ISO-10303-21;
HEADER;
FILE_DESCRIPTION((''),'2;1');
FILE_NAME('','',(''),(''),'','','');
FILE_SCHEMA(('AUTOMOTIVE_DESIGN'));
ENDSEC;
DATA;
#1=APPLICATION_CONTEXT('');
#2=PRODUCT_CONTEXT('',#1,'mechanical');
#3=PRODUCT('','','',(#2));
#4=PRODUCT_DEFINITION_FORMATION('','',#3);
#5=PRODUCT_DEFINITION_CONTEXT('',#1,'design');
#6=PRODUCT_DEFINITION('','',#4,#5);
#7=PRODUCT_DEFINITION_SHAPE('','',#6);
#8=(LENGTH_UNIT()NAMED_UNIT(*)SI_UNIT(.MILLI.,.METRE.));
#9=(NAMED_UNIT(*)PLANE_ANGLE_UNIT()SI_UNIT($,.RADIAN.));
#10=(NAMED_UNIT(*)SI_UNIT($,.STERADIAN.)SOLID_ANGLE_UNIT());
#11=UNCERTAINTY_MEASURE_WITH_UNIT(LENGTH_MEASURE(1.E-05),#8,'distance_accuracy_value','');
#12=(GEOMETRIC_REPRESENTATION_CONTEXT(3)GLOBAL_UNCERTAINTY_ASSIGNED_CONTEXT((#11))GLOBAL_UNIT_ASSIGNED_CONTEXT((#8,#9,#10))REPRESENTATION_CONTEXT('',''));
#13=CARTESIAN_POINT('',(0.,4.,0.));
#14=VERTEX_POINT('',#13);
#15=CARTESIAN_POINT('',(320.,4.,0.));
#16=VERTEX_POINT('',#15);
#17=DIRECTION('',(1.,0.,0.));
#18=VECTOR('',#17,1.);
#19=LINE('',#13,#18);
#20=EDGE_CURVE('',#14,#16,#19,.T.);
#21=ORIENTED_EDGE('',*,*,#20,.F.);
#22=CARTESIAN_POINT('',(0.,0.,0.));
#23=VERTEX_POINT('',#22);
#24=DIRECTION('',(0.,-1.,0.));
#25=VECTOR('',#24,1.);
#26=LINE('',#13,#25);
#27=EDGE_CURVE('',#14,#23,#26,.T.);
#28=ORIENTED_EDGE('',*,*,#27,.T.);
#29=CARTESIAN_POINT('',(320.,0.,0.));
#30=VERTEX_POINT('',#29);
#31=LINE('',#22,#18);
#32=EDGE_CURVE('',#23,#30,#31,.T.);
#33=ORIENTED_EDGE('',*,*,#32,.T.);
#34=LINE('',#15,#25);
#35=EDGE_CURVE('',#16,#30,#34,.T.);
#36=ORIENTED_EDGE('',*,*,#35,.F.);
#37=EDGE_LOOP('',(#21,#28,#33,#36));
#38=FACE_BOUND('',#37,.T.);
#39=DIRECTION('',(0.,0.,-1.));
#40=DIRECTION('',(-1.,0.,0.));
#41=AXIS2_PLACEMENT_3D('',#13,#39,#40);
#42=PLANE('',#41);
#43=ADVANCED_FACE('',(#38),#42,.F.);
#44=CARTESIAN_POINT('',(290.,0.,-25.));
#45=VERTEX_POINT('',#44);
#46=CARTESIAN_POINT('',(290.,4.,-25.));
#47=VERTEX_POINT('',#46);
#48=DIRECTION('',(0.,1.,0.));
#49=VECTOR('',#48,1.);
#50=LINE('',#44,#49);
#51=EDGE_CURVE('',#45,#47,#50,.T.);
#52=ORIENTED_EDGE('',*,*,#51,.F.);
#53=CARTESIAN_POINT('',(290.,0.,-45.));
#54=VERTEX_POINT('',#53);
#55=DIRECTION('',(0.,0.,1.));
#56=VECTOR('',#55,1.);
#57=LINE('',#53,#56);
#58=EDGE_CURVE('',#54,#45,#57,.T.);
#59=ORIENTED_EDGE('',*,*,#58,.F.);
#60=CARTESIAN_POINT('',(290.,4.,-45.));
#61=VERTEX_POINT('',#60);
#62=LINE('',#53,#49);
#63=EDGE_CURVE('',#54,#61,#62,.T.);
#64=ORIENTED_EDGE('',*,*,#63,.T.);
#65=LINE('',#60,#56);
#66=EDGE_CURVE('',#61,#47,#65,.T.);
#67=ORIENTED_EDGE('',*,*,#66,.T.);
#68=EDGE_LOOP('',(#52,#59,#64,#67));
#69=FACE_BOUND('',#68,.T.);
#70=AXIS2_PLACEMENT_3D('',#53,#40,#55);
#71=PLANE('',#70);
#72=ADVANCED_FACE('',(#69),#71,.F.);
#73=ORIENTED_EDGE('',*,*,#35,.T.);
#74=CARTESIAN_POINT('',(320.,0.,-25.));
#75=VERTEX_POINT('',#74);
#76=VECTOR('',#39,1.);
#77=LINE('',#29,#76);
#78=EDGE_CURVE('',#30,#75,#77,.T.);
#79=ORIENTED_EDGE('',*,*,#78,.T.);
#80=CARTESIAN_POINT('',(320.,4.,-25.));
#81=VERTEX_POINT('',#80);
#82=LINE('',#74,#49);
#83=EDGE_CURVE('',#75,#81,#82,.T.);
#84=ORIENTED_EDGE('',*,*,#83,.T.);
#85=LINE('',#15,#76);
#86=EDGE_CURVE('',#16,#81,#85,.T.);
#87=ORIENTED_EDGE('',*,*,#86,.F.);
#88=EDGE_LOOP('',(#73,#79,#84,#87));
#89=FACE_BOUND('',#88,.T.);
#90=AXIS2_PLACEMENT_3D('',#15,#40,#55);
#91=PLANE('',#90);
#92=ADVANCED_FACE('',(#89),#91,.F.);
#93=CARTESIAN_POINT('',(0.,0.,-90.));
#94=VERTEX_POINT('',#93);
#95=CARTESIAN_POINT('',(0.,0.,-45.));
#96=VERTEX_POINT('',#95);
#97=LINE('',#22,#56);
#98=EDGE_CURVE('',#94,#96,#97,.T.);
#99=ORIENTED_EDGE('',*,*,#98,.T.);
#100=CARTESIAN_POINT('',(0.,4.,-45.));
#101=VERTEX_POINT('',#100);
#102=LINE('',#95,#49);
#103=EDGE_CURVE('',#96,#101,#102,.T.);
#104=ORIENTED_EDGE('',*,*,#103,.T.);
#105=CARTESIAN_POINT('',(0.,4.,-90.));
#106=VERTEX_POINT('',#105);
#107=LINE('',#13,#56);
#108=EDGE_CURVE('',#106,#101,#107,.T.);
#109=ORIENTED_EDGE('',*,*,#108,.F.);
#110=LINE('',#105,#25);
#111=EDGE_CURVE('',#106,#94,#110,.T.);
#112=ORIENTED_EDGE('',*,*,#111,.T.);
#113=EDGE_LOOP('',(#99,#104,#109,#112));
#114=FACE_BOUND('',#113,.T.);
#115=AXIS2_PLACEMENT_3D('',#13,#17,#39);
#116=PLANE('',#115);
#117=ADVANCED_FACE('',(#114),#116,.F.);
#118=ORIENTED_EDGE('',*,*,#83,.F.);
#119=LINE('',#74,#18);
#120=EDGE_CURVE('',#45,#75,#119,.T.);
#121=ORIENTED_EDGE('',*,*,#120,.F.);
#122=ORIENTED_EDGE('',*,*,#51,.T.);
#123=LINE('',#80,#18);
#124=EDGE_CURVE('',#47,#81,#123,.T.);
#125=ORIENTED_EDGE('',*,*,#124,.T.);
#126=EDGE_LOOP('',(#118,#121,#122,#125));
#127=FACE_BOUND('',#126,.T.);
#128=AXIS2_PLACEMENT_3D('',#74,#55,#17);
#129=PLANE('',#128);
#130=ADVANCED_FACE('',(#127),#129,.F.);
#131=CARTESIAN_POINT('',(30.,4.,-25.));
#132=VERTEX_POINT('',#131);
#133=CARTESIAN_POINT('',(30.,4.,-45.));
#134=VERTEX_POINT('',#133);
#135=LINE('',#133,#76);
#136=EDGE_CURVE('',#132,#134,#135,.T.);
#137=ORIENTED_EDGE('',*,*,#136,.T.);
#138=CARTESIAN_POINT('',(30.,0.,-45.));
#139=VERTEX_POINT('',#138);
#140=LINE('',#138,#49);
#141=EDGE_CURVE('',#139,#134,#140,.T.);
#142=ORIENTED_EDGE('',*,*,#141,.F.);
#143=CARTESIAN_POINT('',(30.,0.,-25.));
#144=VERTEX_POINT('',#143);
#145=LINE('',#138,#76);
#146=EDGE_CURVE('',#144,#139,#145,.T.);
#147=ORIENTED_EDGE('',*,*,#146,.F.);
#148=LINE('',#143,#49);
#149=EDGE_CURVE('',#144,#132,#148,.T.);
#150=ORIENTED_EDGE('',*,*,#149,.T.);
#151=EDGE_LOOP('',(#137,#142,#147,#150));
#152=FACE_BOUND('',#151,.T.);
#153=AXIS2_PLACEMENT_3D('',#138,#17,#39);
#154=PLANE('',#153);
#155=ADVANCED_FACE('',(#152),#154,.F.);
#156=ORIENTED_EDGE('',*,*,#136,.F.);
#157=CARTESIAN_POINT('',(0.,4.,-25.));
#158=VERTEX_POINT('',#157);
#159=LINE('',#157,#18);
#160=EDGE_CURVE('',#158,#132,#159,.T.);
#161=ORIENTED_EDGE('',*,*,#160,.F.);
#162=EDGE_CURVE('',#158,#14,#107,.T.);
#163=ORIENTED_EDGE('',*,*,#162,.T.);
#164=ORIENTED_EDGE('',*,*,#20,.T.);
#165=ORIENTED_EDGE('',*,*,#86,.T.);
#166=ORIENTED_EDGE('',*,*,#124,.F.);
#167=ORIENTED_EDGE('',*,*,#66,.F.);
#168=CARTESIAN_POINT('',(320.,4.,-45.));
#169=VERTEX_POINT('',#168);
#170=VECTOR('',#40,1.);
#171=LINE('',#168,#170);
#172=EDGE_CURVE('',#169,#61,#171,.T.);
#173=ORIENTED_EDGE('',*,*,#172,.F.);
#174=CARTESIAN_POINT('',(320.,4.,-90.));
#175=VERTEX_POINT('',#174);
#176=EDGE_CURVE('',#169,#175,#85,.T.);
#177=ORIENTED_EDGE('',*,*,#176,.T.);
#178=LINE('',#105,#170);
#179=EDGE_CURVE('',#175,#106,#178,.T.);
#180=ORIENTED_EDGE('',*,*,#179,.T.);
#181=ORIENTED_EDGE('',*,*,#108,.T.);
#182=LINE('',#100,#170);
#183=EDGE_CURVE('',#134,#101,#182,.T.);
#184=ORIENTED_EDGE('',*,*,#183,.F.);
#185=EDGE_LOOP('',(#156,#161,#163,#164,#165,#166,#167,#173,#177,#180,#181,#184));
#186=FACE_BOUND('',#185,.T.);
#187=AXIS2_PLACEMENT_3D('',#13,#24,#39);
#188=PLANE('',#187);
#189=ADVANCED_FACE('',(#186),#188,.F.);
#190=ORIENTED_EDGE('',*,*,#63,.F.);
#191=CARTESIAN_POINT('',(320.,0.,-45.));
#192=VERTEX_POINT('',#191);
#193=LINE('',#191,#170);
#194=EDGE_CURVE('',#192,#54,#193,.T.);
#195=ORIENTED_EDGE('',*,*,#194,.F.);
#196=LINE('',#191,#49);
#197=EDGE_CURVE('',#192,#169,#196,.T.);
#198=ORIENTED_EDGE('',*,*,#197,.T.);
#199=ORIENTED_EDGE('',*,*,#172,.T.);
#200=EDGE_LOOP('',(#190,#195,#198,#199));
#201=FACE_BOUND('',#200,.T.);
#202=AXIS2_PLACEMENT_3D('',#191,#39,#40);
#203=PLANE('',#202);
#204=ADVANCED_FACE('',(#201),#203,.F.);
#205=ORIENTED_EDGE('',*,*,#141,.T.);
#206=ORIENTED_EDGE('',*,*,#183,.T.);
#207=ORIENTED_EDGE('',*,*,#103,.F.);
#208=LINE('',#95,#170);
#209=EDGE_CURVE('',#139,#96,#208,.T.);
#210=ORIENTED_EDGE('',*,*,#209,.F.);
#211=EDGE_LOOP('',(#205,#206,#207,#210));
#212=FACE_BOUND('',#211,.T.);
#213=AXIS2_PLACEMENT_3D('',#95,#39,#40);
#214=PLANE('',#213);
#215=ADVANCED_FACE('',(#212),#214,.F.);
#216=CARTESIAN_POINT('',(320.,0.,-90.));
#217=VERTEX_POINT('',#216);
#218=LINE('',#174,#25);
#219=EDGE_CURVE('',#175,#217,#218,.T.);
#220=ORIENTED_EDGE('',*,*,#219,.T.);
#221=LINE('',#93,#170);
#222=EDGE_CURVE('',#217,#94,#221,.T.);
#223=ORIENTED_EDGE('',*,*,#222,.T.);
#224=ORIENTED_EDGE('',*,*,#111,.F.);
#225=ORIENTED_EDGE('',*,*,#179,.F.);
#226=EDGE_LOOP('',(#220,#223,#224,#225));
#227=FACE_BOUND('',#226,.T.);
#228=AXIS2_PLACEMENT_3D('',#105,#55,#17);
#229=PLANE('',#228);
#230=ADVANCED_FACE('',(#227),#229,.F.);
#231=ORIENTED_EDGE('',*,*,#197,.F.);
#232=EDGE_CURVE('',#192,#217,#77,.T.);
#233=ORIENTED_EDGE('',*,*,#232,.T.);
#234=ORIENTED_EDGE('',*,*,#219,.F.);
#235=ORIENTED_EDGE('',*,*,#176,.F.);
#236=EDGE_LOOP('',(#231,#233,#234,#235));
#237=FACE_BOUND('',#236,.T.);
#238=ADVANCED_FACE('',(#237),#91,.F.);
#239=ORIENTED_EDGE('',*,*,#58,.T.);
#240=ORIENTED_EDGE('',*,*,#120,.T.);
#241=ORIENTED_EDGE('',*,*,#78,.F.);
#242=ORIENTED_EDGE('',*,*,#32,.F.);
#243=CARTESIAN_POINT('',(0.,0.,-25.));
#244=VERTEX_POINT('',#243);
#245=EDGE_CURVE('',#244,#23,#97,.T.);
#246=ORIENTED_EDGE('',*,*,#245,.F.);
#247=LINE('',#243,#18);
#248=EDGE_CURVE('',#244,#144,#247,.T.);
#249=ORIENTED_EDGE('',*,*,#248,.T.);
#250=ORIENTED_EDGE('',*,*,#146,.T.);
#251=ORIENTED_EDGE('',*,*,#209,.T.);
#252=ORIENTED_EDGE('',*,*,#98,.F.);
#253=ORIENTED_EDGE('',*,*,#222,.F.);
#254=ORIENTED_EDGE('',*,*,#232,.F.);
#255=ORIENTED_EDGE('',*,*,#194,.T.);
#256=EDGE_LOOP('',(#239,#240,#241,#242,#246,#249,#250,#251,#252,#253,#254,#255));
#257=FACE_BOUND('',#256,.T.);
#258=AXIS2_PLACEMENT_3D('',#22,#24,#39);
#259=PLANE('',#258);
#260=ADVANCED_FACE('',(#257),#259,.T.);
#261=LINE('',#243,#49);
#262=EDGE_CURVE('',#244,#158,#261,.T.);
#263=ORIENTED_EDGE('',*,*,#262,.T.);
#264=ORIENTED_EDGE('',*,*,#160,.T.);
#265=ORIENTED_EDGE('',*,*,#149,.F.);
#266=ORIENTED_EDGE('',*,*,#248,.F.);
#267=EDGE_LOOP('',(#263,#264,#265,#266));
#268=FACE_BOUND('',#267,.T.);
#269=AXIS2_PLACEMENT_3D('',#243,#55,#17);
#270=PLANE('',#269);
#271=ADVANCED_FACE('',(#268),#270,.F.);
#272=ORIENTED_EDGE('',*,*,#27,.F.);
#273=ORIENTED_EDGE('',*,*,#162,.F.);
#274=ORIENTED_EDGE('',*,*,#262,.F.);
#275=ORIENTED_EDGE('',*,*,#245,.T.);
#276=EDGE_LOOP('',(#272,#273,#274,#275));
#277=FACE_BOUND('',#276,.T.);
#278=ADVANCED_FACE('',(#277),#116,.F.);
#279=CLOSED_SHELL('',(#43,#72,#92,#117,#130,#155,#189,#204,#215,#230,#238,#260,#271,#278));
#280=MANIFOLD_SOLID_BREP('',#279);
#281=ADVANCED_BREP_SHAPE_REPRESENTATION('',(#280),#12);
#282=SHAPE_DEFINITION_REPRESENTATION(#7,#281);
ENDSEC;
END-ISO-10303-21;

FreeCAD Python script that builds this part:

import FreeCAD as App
import Part
import Sketcher

doc = App.newDocument("Part")
body = doc.addObject("PartDesign::Body", "Body")

sketch1 = body.newObject("Sketcher::SketchObject", "Sketch")
sketch1.AttachmentSupport = (doc.getObject("XZ_Plane"), [""])
sketch1.MapMode = "FlatFace"
sketch1.addGeometry(Part.LineSegment(App.Vector(0, -90, 0), App.Vector(0, 0, 0)), False)
sketch1.addGeometry(Part.LineSegment(App.Vector(0, 0, 0), App.Vector(320, 0, 0)), False)
sketch1.addGeometry(Part.LineSegment(App.Vector(320, 0, 0), App.Vector(320, -90, 0)), False)
sketch1.addGeometry(Part.LineSegment(App.Vector(320, -90, 0), App.Vector(0, -90, 0)), False)
sketch1.addConstraint(Sketcher.Constraint("Coincident", 0, 2, 1, 1))
sketch1.addConstraint(Sketcher.Constraint("Coincident", 1, 2, 2, 1))
sketch1.addConstraint(Sketcher.Constraint("Coincident", 2, 2, 3, 1))
sketch1.addConstraint(Sketcher.Constraint("Coincident", 3, 2, 0, 1))
sketch1.addConstraint(Sketcher.Constraint("Vertical", 0))
sketch1.addConstraint(Sketcher.Constraint("Horizontal", 1))
sketch1.addConstraint(Sketcher.Constraint("Vertical", 2))
sketch1.addConstraint(Sketcher.Constraint("Horizontal", 3))
sketch1.addConstraint(Sketcher.Constraint("Coincident", 0, 2, -1, 1))
sketch1.addConstraint(Sketcher.Constraint("DistanceX", 1, 1, 1, 2, 320.0))
sketch1.addConstraint(Sketcher.Constraint("DistanceY", 0, 1, 0, 2, 90.0))
pad1 = body.newObject("PartDesign::Pad", "Pad")
pad1.Profile = sketch1
pad1.Length = 4
pad1.Reversed = True

sketch2 = body.newObject("Sketcher::SketchObject", "Sketch001")
sketch2.AttachmentSupport = (doc.getObject("XZ_Plane"), [""])
sketch2.MapMode = "FlatFace"
sketch2.AttachmentOffset = App.Placement(App.Vector(0, 0, -4), App.Rotation())
sketch2.addGeometry(Part.LineSegment(App.Vector(0, -45, 0), App.Vector(0, -25, 0)), False)
sketch2.addGeometry(Part.LineSegment(App.Vector(0, -25, 0), App.Vector(30, -25, 0)), False)
sketch2.addGeometry(Part.LineSegment(App.Vector(30, -25, 0), App.Vector(30, -45, 0)), False)
sketch2.addGeometry(Part.LineSegment(App.Vector(30, -45, 0), App.Vector(0, -45, 0)), False)
sketch2.addGeometry(Part.LineSegment(App.Vector(290, -45, 0), App.Vector(290, -25, 0)), False)
sketch2.addGeometry(Part.LineSegment(App.Vector(290, -25, 0), App.Vector(320, -25, 0)), False)
sketch2.addGeometry(Part.LineSegment(App.Vector(320, -25, 0), App.Vector(320, -45, 0)), False)
sketch2.addGeometry(Part.LineSegment(App.Vector(320, -45, 0), App.Vector(290, -45, 0)), False)
sketch2.addConstraint(Sketcher.Constraint("Coincident", 0, 2, 1, 1))
sketch2.addConstraint(Sketcher.Constraint("Coincident", 1, 2, 2, 1))
sketch2.addConstraint(Sketcher.Constraint("Coincident", 2, 2, 3, 1))
sketch2.addConstraint(Sketcher.Constraint("Coincident", 3, 2, 0, 1))
sketch2.addConstraint(Sketcher.Constraint("Coincident", 4, 2, 5, 1))
sketch2.addConstraint(Sketcher.Constraint("Coincident", 5, 2, 6, 1))
sketch2.addConstraint(Sketcher.Constraint("Coincident", 6, 2, 7, 1))
sketch2.addConstraint(Sketcher.Constraint("Coincident", 7, 2, 4, 1))
sketch2.addConstraint(Sketcher.Constraint("Vertical", 0))
sketch2.addConstraint(Sketcher.Constraint("Horizontal", 1))
sketch2.addConstraint(Sketcher.Constraint("Vertical", 2))
sketch2.addConstraint(Sketcher.Constraint("Horizontal", 3))
sketch2.addConstraint(Sketcher.Constraint("Vertical", 4))
sketch2.addConstraint(Sketcher.Constraint("Horizontal", 5))
sketch2.addConstraint(Sketcher.Constraint("Vertical", 6))
sketch2.addConstraint(Sketcher.Constraint("Horizontal", 7))
sketch2.addConstraint(Sketcher.Constraint("PointOnObject", 0, 2, -2))
sketch2.addConstraint(Sketcher.Constraint("Horizontal", 1, 2, 4, 2))
sketch2.addConstraint(Sketcher.Constraint("Horizontal", 3, 2, 6, 2))
sketch2.addConstraint(Sketcher.Constraint("Equal", 3, 5))
sketch2.addConstraint(Sketcher.Constraint("DistanceX", 1, 1, 1, 2, 30.0))
sketch2.addConstraint(Sketcher.Constraint("DistanceY", 0, 1, 0, 2, 20.0))
sketch2.addConstraint(Sketcher.Constraint("DistanceY", 0, 2, -1, 1, 25.0))
sketch2.addConstraint(Sketcher.Constraint("DistanceX", -1, 1, 4, 2, 290.0))
pocket1 = body.newObject("PartDesign::Pocket", "Pocket")
pocket1.Profile = sketch2
pocket1.Type = "ThroughAll"
pocket1.Reversed = True

doc.recompute()
